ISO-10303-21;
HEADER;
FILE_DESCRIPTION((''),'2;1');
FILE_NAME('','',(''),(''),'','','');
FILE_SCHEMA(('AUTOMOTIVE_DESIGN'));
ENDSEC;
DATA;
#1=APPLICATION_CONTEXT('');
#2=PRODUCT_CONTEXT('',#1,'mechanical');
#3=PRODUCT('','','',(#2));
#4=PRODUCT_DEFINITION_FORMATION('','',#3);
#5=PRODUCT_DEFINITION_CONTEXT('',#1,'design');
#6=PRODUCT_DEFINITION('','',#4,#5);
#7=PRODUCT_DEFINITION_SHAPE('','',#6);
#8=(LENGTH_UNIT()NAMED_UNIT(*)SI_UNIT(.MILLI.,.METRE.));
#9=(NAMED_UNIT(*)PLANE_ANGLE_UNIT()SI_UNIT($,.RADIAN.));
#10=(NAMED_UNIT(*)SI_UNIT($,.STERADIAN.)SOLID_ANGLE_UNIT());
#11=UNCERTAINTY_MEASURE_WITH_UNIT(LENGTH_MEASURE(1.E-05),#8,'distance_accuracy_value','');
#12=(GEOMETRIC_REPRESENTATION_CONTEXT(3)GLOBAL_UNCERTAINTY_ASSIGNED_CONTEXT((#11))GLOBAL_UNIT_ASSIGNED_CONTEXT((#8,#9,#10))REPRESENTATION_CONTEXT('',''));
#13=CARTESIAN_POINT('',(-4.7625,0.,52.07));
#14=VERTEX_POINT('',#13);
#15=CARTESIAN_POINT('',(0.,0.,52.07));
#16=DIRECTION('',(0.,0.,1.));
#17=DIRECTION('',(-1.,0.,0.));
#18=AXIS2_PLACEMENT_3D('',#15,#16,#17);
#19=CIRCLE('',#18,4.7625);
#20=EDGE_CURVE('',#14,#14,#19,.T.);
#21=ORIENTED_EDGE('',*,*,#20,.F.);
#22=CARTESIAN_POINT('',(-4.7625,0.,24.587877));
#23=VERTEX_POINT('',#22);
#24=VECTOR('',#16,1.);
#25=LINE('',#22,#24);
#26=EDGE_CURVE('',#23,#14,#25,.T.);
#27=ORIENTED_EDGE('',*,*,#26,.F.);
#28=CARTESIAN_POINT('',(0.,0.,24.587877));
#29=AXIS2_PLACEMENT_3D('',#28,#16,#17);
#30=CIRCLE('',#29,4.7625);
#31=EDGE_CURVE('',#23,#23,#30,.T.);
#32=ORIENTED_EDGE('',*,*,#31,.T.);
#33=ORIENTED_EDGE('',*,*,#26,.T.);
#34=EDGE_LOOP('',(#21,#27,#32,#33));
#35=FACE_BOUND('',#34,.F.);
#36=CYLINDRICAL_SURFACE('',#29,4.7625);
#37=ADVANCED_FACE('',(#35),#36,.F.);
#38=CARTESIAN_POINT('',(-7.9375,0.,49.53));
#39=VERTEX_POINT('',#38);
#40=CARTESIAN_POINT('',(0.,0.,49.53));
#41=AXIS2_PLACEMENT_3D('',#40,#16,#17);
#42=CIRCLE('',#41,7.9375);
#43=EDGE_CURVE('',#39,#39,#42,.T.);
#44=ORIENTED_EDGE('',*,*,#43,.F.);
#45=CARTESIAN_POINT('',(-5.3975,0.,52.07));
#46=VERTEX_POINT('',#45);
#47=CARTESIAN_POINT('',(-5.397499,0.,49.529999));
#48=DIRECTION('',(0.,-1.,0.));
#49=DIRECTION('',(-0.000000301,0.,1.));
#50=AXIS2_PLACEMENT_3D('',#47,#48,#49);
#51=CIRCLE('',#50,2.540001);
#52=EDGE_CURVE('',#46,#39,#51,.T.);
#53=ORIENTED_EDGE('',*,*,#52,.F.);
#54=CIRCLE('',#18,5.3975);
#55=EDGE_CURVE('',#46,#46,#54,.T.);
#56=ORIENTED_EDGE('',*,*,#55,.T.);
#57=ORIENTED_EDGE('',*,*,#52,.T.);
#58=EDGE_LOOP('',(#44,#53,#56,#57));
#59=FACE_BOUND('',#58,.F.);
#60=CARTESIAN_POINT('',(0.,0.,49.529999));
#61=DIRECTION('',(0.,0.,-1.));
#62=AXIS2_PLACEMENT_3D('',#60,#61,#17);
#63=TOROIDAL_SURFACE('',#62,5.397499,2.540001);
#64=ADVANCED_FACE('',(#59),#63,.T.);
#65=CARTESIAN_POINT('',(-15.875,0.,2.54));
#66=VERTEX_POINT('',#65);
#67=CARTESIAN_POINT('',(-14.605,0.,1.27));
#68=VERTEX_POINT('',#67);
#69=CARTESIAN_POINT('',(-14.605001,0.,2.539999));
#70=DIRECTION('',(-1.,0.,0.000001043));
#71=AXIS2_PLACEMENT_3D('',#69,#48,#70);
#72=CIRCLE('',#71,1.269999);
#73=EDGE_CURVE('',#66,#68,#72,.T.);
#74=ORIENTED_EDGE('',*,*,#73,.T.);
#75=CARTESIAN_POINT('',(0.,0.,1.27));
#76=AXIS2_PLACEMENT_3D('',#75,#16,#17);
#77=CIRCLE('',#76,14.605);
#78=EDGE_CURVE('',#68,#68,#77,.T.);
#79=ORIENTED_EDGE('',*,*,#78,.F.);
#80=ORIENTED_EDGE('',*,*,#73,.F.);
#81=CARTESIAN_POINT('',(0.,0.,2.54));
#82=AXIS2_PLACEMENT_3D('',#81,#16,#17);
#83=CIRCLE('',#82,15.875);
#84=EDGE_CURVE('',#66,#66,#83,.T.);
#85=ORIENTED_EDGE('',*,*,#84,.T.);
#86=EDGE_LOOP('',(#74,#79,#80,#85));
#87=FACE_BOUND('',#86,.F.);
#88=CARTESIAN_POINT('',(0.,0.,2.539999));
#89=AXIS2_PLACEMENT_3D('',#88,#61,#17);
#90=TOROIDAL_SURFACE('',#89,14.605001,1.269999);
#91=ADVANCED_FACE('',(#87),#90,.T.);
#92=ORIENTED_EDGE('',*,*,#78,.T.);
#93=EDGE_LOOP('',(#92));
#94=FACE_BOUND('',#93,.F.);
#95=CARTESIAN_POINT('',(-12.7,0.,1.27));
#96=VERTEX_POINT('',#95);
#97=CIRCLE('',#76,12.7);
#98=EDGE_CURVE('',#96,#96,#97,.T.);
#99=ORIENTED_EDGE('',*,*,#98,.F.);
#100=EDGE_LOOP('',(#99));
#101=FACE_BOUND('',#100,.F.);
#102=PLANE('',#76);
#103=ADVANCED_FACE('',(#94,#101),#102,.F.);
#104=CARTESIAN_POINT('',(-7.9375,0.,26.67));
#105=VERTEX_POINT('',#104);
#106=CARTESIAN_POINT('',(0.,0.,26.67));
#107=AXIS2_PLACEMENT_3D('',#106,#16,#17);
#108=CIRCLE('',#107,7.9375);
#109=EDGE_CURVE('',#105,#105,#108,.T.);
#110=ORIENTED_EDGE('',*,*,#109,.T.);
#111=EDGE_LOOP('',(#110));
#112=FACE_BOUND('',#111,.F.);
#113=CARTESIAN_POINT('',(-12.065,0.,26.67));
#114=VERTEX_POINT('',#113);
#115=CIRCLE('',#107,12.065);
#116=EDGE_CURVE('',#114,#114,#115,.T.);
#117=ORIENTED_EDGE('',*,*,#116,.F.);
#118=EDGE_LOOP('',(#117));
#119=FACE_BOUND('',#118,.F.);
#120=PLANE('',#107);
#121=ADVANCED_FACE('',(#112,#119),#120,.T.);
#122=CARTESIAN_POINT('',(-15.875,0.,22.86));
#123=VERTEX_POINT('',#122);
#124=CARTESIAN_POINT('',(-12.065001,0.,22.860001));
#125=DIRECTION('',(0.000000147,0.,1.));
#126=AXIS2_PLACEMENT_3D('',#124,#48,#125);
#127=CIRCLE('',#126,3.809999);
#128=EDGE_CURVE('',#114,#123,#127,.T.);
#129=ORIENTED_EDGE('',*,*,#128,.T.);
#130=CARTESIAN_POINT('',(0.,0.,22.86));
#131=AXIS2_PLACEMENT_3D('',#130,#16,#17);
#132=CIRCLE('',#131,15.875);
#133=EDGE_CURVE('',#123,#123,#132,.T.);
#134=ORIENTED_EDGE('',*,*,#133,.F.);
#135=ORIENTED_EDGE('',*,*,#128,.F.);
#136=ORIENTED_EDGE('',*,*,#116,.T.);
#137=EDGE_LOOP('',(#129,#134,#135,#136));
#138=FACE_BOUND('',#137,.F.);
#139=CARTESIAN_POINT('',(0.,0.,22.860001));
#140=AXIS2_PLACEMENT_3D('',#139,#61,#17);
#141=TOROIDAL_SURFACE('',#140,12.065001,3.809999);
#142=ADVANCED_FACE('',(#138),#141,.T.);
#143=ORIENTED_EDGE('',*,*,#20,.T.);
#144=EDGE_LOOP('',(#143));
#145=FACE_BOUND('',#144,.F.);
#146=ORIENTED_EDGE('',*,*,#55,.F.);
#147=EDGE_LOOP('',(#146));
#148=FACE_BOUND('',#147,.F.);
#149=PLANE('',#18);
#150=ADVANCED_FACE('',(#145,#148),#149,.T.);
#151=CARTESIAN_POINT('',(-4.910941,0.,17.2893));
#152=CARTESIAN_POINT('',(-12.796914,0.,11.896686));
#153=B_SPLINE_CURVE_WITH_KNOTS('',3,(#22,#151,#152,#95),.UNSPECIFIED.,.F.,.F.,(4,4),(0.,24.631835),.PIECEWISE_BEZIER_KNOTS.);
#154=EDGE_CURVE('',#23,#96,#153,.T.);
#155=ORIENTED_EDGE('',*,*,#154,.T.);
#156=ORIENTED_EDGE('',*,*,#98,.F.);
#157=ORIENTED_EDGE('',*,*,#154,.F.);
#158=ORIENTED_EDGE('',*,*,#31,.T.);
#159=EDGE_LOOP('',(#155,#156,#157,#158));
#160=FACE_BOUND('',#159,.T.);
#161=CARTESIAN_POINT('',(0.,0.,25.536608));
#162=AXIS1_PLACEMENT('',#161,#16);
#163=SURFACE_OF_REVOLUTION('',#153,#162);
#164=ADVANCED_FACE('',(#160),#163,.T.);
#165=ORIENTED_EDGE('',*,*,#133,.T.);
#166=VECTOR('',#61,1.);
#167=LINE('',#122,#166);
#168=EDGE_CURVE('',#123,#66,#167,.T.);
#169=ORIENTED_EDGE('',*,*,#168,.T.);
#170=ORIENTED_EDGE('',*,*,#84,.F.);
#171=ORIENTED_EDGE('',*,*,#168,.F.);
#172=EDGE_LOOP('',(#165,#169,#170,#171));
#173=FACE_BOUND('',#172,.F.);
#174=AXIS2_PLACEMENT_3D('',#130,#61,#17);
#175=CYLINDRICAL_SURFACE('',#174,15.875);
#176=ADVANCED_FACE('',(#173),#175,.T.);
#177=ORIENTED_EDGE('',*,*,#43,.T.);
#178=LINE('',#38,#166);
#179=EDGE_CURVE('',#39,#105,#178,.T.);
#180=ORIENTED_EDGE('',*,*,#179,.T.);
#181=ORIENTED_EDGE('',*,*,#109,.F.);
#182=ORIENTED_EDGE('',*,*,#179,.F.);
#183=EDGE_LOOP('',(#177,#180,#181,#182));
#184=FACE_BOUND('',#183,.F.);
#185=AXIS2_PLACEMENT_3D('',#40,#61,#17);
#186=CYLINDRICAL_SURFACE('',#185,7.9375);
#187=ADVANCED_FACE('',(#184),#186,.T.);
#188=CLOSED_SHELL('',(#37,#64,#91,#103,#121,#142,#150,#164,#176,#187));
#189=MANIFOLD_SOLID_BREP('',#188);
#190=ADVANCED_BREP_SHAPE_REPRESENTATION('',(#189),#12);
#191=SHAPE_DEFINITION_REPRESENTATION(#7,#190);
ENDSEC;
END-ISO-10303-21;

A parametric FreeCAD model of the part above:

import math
import FreeCAD as App
import Part
import Sketcher
from FreeCAD import Vector
Q = App.Units.Quantity

doc = App.newDocument("Part")
body = doc.addObject("PartDesign::Body", "Body")

sketch1 = body.newObject("Sketcher::SketchObject", "Sketch")
sketch1.AttachmentSupport = (doc.getObject("XZ_Plane"), [""])
sketch1.MapMode = "FlatFace"
sketch1.addGeometry(Part.LineSegment(Vector(-15.875, 22.86, 0), Vector(-15.875, 2.54, 0)), False)
sketch1.addGeometry(Part.ArcOfCircle(Part.Circle(Vector(-14.605001, 2.539999, 0), Vector(0, 0, 1), 1.269999), math.radians(179.99994), math.radians(270.00006)), False)
sketch1.addGeometry(Part.LineSegment(Vector(-14.605, 1.27, 0), Vector(-12.7, 1.27, 0)), False)
sketch1.addGeometry(Part.BSplineCurve([Vector(-4.7625, 24.587877, 0), Vector(-4.910941, 17.2893, 0), Vector(-12.796914, 11.896686, 0), Vector(-12.7, 1.27, 0)], [4, 4], [0, 24.631835], False, 3, [1, 1, 1, 1], False), False)
sketch1.addGeometry(Part.LineSegment(Vector(-4.7625, 24.587877, 0), Vector(-4.7625, 52.07, 0)), False)
sketch1.addGeometry(Part.LineSegment(Vector(-4.7625, 52.07, 0), Vector(-5.3975, 52.07, 0)), False)
sketch1.addGeometry(Part.ArcOfCircle(Part.Circle(Vector(-5.397499, 49.529999, 0), Vector(0, 0, 1), 2.540001), math.radians(90.000017), math.radians(179.999983)), False)
sketch1.addGeometry(Part.LineSegment(Vector(-7.9375, 49.53, 0), Vector(-7.9375, 26.67, 0)), False)
sketch1.addGeometry(Part.LineSegment(Vector(-7.9375, 26.67, 0), Vector(-12.065, 26.67, 0)), False)
sketch1.addGeometry(Part.ArcOfCircle(Part.Circle(Vector(-12.065001, 22.860001, 0), Vector(0, 0, 1), 3.809999), math.radians(89.999992), math.radians(180.000008)), False)
sketch1.addConstraint(Sketcher.Constraint("Block", 3))
sketch1.addConstraint(Sketcher.Constraint("Tangent", 0, 2, 1, 1))
sketch1.addConstraint(Sketcher.Constraint("Tangent", 1, 2, 2, 1))
sketch1.addConstraint(Sketcher.Constraint("Coincident", 2, 2, 3, 2))
sketch1.addConstraint(Sketcher.Constraint("Coincident", 3, 1, 4, 1))
sketch1.addConstraint(Sketcher.Constraint("Coincident", 4, 2, 5, 1))
sketch1.addConstraint(Sketcher.Constraint("Tangent", 5, 2, 6, 1))
sketch1.addConstraint(Sketcher.Constraint("Tangent", 6, 2, 7, 1))
sketch1.addConstraint(Sketcher.Constraint("Coincident", 7, 2, 8, 1))
sketch1.addConstraint(Sketcher.Constraint("Tangent", 8, 2, 9, 1))
sketch1.addConstraint(Sketcher.Constraint("Tangent", 9, 2, 0, 1))
sketch1.addConstraint(Sketcher.Constraint("Vertical", 0))
sketch1.addConstraint(Sketcher.Constraint("Horizontal", 2))
sketch1.addConstraint(Sketcher.Constraint("Vertical", 4))
sketch1.addConstraint(Sketcher.Constraint("Horizontal", 5))
sketch1.addConstraint(Sketcher.Constraint("Vertical", 7))
sketch1.addConstraint(Sketcher.Constraint("Horizontal", 8))
sketch1.addConstraint(Sketcher.Constraint("Radius", 6, Q("0.1 in")))
sketch1.addConstraint(Sketcher.Constraint("Radius", 1, Q("0.0499999 in")))
sketch1.addConstraint(Sketcher.Constraint("Radius", 9, Q("0.15 in")))
sketch1.addConstraint(Sketcher.Constraint("DistanceY", 0, 2, 0, 1, Q("0.8 in")))
sketch1.addConstraint(Sketcher.Constraint("DistanceY", 7, 2, 7, 1, Q("0.9 in")))
sketch1.addConstraint(Sketcher.Constraint("DistanceX", 2, 1, 2, 2, Q("0.075 in")))
sketch1.addConstraint(Sketcher.Constraint("DistanceX", 5, 2, 5, 1, Q("0.025 in")))
revolution = body.newObject("PartDesign::Revolution", "Revolution")
revolution.Profile = sketch1
revolution.ReferenceAxis = (sketch1, ["V_Axis"])
revolution.Angle = 360

doc.recompute()
